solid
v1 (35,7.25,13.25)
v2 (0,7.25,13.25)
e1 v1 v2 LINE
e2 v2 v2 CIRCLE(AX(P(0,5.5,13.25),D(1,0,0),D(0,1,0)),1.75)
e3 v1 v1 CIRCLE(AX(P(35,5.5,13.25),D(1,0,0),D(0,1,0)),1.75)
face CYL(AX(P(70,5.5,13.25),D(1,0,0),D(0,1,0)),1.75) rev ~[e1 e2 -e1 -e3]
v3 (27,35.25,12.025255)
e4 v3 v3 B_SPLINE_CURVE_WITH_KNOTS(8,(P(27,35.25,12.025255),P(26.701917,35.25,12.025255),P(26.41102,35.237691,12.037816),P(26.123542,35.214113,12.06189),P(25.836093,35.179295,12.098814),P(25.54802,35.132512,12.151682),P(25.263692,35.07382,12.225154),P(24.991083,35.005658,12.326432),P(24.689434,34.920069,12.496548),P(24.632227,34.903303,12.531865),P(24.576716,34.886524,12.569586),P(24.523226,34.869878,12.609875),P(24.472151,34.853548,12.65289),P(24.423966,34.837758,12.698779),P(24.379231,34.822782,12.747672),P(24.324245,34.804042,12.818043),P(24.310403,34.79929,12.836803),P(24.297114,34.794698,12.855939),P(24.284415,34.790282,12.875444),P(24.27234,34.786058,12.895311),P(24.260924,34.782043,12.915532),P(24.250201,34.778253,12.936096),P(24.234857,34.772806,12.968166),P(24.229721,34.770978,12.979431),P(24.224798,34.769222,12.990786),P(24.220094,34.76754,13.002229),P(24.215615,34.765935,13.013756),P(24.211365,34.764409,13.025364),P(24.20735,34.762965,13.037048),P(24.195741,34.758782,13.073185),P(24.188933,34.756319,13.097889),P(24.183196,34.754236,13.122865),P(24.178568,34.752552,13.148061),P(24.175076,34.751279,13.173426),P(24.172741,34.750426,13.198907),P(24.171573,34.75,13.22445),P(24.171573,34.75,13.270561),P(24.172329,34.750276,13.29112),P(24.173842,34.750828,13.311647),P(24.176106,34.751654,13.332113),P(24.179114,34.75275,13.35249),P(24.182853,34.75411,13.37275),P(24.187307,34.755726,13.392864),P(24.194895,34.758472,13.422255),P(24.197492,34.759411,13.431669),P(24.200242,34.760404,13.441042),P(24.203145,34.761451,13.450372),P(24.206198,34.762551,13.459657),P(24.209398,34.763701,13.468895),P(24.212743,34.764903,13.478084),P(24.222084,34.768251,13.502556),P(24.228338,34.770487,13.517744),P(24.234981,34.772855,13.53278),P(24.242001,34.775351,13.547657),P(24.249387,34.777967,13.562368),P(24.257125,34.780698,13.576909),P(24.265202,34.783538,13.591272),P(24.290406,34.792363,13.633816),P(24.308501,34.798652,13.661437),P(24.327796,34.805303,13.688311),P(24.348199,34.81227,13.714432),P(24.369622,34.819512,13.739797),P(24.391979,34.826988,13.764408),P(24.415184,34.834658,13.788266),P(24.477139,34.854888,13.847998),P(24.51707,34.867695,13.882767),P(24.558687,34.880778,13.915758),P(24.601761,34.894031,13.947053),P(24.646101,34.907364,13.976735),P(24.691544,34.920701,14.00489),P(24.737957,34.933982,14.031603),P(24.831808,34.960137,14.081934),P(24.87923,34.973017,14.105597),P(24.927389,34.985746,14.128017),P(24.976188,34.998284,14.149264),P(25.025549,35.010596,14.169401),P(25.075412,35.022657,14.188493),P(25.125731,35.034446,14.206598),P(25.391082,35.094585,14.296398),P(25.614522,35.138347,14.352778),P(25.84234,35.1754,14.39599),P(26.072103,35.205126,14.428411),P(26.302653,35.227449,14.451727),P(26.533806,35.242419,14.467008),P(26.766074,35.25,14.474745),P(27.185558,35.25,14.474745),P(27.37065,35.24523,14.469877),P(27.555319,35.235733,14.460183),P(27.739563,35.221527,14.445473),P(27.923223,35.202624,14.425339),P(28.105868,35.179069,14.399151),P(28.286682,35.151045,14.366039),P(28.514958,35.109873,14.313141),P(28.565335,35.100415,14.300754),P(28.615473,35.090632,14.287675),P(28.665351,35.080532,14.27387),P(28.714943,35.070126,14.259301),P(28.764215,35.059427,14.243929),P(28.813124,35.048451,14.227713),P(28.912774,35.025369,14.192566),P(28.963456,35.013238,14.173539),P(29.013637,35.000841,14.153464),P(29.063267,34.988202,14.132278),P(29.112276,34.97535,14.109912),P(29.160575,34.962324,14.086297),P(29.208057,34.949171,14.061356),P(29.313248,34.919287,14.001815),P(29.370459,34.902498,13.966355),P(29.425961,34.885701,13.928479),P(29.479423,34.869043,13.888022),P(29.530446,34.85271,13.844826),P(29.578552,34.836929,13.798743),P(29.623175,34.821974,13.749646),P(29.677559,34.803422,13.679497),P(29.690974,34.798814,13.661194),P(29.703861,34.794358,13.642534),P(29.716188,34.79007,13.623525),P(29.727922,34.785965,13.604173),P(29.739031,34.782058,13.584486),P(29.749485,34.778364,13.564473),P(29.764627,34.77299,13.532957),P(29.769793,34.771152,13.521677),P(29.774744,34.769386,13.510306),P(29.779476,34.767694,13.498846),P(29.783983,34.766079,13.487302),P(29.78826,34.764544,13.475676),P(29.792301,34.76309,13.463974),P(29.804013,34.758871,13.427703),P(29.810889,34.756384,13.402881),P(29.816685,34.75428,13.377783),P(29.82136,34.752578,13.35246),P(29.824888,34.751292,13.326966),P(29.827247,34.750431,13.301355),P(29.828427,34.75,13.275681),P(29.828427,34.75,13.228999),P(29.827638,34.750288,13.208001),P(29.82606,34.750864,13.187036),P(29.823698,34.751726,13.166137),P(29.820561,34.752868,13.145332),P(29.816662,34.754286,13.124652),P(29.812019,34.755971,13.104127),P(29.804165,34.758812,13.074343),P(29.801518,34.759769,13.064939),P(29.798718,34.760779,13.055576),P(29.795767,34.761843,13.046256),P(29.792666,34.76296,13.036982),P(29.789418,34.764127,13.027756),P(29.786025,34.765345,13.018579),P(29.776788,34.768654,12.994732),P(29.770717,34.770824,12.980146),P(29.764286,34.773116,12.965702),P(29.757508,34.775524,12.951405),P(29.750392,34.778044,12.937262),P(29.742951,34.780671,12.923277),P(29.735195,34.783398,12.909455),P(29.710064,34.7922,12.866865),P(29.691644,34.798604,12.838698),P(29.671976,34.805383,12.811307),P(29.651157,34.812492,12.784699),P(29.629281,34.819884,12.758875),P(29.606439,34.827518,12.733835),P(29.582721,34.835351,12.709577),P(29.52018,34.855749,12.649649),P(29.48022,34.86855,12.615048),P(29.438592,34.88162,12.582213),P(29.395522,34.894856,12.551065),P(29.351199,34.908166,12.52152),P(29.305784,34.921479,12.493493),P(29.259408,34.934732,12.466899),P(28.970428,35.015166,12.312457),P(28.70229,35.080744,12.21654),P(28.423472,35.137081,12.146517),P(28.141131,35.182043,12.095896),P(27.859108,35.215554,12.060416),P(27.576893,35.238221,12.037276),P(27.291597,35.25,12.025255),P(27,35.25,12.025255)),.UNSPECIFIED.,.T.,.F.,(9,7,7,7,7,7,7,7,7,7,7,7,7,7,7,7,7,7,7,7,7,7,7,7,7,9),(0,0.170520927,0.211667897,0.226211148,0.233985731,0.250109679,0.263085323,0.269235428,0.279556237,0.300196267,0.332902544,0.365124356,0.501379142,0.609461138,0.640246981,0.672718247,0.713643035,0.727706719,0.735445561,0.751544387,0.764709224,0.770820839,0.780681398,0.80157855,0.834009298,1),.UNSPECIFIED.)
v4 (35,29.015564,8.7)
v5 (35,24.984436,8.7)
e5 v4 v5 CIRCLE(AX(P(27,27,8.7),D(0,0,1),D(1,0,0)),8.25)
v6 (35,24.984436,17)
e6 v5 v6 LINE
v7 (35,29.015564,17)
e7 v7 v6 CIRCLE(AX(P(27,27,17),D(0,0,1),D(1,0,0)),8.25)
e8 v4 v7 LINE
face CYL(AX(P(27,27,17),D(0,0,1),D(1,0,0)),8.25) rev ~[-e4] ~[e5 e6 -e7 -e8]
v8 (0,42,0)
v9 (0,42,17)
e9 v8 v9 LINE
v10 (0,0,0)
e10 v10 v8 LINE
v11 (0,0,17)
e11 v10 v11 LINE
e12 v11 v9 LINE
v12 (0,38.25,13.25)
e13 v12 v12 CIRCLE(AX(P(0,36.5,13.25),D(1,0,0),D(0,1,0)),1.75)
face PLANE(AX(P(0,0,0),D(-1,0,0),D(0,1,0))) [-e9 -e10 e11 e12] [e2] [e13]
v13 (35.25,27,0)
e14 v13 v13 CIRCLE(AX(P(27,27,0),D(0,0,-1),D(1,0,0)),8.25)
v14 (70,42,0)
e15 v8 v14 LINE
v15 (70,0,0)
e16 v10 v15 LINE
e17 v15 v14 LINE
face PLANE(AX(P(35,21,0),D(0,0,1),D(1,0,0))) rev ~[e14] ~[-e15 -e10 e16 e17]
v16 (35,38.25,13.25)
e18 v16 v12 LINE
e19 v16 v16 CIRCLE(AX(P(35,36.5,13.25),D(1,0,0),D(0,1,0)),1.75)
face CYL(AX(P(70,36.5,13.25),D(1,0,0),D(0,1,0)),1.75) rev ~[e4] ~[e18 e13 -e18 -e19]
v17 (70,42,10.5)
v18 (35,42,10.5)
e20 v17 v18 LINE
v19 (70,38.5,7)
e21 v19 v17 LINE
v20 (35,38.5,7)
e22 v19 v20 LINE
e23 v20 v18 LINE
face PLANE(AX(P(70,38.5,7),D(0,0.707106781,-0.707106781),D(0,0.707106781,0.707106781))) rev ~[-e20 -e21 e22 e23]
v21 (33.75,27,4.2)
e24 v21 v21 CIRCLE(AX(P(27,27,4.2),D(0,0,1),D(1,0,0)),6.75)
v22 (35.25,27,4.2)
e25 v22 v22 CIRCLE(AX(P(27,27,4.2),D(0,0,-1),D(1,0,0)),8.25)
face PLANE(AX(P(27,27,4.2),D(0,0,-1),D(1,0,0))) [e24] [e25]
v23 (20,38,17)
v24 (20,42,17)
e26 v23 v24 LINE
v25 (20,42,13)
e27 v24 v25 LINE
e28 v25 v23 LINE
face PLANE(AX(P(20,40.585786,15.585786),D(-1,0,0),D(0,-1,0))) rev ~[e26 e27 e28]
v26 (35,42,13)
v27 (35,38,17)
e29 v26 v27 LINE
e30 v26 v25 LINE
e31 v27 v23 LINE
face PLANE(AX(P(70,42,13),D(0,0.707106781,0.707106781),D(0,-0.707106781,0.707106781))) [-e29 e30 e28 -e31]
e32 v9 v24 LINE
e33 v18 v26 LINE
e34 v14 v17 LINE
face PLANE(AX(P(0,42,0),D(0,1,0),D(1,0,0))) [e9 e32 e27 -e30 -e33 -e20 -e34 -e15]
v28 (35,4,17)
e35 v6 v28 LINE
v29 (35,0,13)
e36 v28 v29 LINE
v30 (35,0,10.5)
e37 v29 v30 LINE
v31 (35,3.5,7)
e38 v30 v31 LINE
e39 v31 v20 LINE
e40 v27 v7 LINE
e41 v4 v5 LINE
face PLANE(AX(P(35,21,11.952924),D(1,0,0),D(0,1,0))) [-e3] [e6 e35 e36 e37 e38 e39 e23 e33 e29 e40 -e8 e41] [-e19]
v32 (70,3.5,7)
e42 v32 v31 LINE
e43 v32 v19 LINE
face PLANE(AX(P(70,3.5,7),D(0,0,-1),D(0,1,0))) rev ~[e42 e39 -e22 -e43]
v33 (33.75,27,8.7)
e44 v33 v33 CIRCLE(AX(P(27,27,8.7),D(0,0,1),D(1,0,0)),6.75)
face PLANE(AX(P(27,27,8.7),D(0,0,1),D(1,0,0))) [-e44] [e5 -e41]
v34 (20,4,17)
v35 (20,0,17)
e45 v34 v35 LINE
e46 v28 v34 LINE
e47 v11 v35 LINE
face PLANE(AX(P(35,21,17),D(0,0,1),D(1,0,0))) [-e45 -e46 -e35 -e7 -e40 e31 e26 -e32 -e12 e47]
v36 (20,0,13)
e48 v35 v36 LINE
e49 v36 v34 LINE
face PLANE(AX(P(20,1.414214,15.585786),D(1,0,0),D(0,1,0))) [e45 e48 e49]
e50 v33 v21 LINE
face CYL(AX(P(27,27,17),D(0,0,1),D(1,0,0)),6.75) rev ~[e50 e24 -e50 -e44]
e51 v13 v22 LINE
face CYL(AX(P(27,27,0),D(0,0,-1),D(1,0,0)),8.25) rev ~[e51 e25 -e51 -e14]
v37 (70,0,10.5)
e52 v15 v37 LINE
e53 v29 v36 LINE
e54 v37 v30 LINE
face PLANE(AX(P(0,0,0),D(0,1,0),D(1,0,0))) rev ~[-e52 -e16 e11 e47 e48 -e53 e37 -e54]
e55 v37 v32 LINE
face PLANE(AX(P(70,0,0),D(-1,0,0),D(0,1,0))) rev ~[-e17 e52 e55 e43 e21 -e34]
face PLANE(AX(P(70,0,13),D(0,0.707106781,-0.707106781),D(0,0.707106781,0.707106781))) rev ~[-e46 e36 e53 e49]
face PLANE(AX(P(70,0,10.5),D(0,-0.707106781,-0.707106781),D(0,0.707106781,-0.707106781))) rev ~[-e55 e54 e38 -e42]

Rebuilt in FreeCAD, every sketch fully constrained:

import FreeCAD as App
import Part
import Sketcher
Q = App.Units.Quantity


def add_polygon(sketch, points):
    """Adds a closed chain of lines whose ends are joined by coincident constraints."""
    first, n = sketch.GeometryCount, len(points)
    for a, b in zip(points, points[1:] + points[:1]):
        sketch.addGeometry(Part.LineSegment(App.Vector(*a, 0), App.Vector(*b, 0)), False)
    for i in range(n):
        sketch.addConstraint(Sketcher.Constraint("Coincident", first + i, 2, first + (i + 1) % n, 1))

doc = App.newDocument("Part")
params = doc.addObject("Spreadsheet::Sheet", "Params")
for row, (alias, value) in enumerate([
    ("sketch1_width", "70 mm"),
    ("sketch1_height", "42 mm"),
    ("pad1_length", "17 mm"),
    ("sketch2_diameter", "3.5 mm"),
    ("sketch3_width", "4 mm"),
    ("pocket2_length", "50 mm"),
    ("sketch4_width", "35 mm"),
    ("sketch4_width2", "34 mm"),
    ("sketch4_height", "2.5 mm"),
    ("pocket3_length", "35 mm"),
    ("sketch5_diameter", "13.5 mm"),
    ("sketch6_diameter", "16.5 mm"),
    ("pocket5_length", "8.3 mm"),
    ("sketch7_diameter", "16.5 mm"),
    ("pocket6_length", "4.2 mm"),
], start=1):
    params.set(f"A{row}", alias)
    params.set(f"B{row}", "=" + value)
    params.setAlias(f"B{row}", alias)

body = doc.addObject("PartDesign::Body", "Body")

sketch1 = body.newObject("Sketcher::SketchObject", "Sketch")
sketch1.AttachmentSupport = (doc.getObject("XY_Plane"), [""])
sketch1.MapMode = "FlatFace"
add_polygon(sketch1, [(0, 42), (0, 0), (70, 0), (70, 42)])
sketch1.addConstraint(Sketcher.Constraint("Vertical", 0))
sketch1.addConstraint(Sketcher.Constraint("Horizontal", 1))
sketch1.addConstraint(Sketcher.Constraint("Vertical", 2))
sketch1.addConstraint(Sketcher.Constraint("Horizontal", 3))
sketch1.addConstraint(Sketcher.Constraint("Coincident", 0, 2, -1, 1))
sketch1.addConstraint(Sketcher.Constraint("DistanceX", 1, 1, 1, 2, Q("70 mm")))
sketch1.addConstraint(Sketcher.Constraint("DistanceY", 0, 2, 0, 1, Q("42 mm")))
sketch1.setExpression("Constraints[9]", "Params.sketch1_width")
sketch1.setExpression("Constraints[10]", "Params.sketch1_height")
pad1 = body.newObject("PartDesign::Pad", "Pad")
pad1.Profile = sketch1
pad1.setExpression("Length", "Params.pad1_length")

sketch2 = body.newObject("Sketcher::SketchObject", "Sketch001")
sketch2.AttachmentSupport = (doc.getObject("YZ_Plane"), [""])
sketch2.MapMode = "FlatFace"
sketch2.AttachmentOffset = App.Placement(App.Vector(0, 0, 70), App.Rotation())
sketch2.addGeometry(Part.Circle(App.Vector(5.5, 13.2, 0), App.Vector(0, 0, 1), 1.8), False)
sketch2.addGeometry(Part.Circle(App.Vector(36.5, 13.2, 0), App.Vector(0, 0, 1), 1.8), False)
sketch2.addConstraint(Sketcher.Constraint("Equal", 0, 1))
sketch2.addConstraint(Sketcher.Constraint("Horizontal", 0, 3, 1, 3))
sketch2.addConstraint(Sketcher.Constraint("Diameter", 0, Q("3.5 mm")))
sketch2.addConstraint(Sketcher.Constraint("DistanceX", 0, 3, 1, 3, Q("31 mm")))
sketch2.addConstraint(Sketcher.Constraint("DistanceX", -1, 1, 0, 3, Q("5.5 mm")))
sketch2.addConstraint(Sketcher.Constraint("DistanceY", -1, 1, 0, 3, Q("13.25 mm")))
sketch2.setExpression("Constraints[2]", "Params.sketch2_diameter")
pocket1 = body.newObject("PartDesign::Pocket", "Pocket")
pocket1.Profile = sketch2
pocket1.Type = "ThroughAll"

sketch3 = body.newObject("Sketcher::SketchObject", "Sketch002")
sketch3.AttachmentSupport = (doc.getObject("YZ_Plane"), [""])
sketch3.MapMode = "FlatFace"
sketch3.AttachmentOffset = App.Placement(App.Vector(0, 0, 70), App.Rotation())
add_polygon(sketch3, [(4, 17), (0, 17), (0, 13)])
add_polygon(sketch3, [(42, 17), (38, 17), (42, 13)])
sketch3.addConstraint(Sketcher.Constraint("Horizontal", 0))
sketch3.addConstraint(Sketcher.Constraint("Vertical", 1))
sketch3.addConstraint(Sketcher.Constraint("Horizontal", 3))
sketch3.addConstraint(Sketcher.Constraint("Vertical", 5))
sketch3.addConstraint(Sketcher.Constraint("PointOnObject", 0, 2, -2))
sketch3.addConstraint(Sketcher.Constraint("Perpendicular", 2, 4))
sketch3.addConstraint(Sketcher.Constraint("Horizontal", 2, 2, 3, 2))
sketch3.addConstraint(Sketcher.Constraint("Horizontal", 1, 2, 4, 2))
sketch3.addConstraint(Sketcher.Constraint("Equal", 0, 3))
sketch3.addConstraint(Sketcher.Constraint("DistanceX", 0, 2, 0, 1, Q("4 mm")))
sketch3.addConstraint(Sketcher.Constraint("DistanceY", -1, 1, 0, 2, Q("17 mm")))
sketch3.addConstraint(Sketcher.Constraint("DistanceX", -1, 1, 3, 2, Q("38 mm")))
sketch3.setExpression("Constraints[15]", "Params.sketch3_width")
pocket2 = body.newObject("PartDesign::Pocket", "Pocket001")
pocket2.Profile = sketch3
pocket2.setExpression("Length", "Params.pocket2_length")

sketch4 = body.newObject("Sketcher::SketchObject", "Sketch003")
sketch4.AttachmentSupport = (doc.getObject("YZ_Plane"), [""])
sketch4.MapMode = "FlatFace"
sketch4.AttachmentOffset = App.Placement(App.Vector(0, 0, 70), App.Rotation())
add_polygon(sketch4, [(4, 17), (0, 13), (0, 10.5), (3.5, 7), (38.5, 7), (42, 10.5), (42, 13), (38, 17)])
sketch4.addConstraint(Sketcher.Constraint("Vertical", 1))
sketch4.addConstraint(Sketcher.Constraint("Horizontal", 3))
sketch4.addConstraint(Sketcher.Constraint("Vertical", 5))
sketch4.addConstraint(Sketcher.Constraint("Horizontal", 7))
sketch4.addConstraint(Sketcher.Constraint("PointOnObject", 0, 2, -2))
sketch4.addConstraint(Sketcher.Constraint("Perpendicular", 0, 2))
sketch4.addConstraint(Sketcher.Constraint("Perpendicular", 2, 4))
sketch4.addConstraint(Sketcher.Constraint("Perpendicular", 4, 6))
sketch4.addConstraint(Sketcher.Constraint("Horizontal", 1, 2, 4, 2))
sketch4.addConstraint(Sketcher.Constraint("Horizontal", 0, 2, 5, 2))
sketch4.addConstraint(Sketcher.Constraint("Equal", 2, 4))
sketch4.addConstraint(Sketcher.Constraint("DistanceX", 3, 1, 3, 2, Q("35 mm")))
sketch4.addConstraint(Sketcher.Constraint("DistanceX", 7, 2, 7, 1, Q("34 mm")))
sketch4.addConstraint(Sketcher.Constraint("DistanceY", 1, 2, 1, 1, Q("2.5 mm")))
sketch4.addConstraint(Sketcher.Constraint("DistanceY", -1, 1, 0, 2, Q("13 mm")))
sketch4.addConstraint(Sketcher.Constraint("DistanceY", -1, 1, 2, 2, Q("7 mm")))
sketch4.setExpression("Constraints[19]", "Params.sketch4_width")
sketch4.setExpression("Constraints[20]", "Params.sketch4_width2")
sketch4.setExpression("Constraints[21]", "Params.sketch4_height")
pocket3 = body.newObject("PartDesign::Pocket", "Pocket002")
pocket3.Profile = sketch4
pocket3.setExpression("Length", "Params.pocket3_length")

sketch5 = body.newObject("Sketcher::SketchObject", "Sketch004")
sketch5.AttachmentSupport = (doc.getObject("XY_Plane"), [""])
sketch5.MapMode = "FlatFace"
sketch5.AttachmentOffset = App.Placement(App.Vector(0, 0, 17), App.Rotation())
sketch5.addGeometry(Part.Circle(App.Vector(27, 27, 0), App.Vector(0, 0, 1), 7), False)
sketch5.addConstraint(Sketcher.Constraint("Diameter", 0, Q("13.5 mm")))
sketch5.addConstraint(Sketcher.Constraint("DistanceX", -1, 1, 0, 3, Q("27 mm")))
sketch5.addConstraint(Sketcher.Constraint("DistanceY", -1, 1, 0, 3, Q("27 mm")))
sketch5.setExpression("Constraints[0]", "Params.sketch5_diameter")
pocket4 = body.newObject("PartDesign::Pocket", "Pocket003")
pocket4.Profile = sketch5
pocket4.Type = "ThroughAll"

sketch6 = body.newObject("Sketcher::SketchObject", "Sketch005")
sketch6.AttachmentSupport = (doc.getObject("XY_Plane"), [""])
sketch6.MapMode = "FlatFace"
sketch6.AttachmentOffset = App.Placement(App.Vector(0, 0, 17), App.Rotation())
sketch6.addGeometry(Part.Circle(App.Vector(27, 27, 0), App.Vector(0, 0, 1), 8), False)
sketch6.addConstraint(Sketcher.Constraint("Diameter", 0, Q("16.5 mm")))
sketch6.addConstraint(Sketcher.Constraint("DistanceX", -1, 1, 0, 3, Q("27 mm")))
sketch6.addConstraint(Sketcher.Constraint("DistanceY", -1, 1, 0, 3, Q("27 mm")))
sketch6.setExpression("Constraints[0]", "Params.sketch6_diameter")
pocket5 = body.newObject("PartDesign::Pocket", "Pocket004")
pocket5.Profile = sketch6
pocket5.setExpression("Length", "Params.pocket5_length")

sketch7 = body.newObject("Sketcher::SketchObject", "Sketch006")
sketch7.AttachmentSupport = (doc.getObject("XY_Plane"), [""])
sketch7.MapMode = "FlatFace"
sketch7.addGeometry(Part.Circle(App.Vector(27, 27, 0), App.Vector(0, 0, 1), 8), False)
sketch7.addConstraint(Sketcher.Constraint("Diameter", 0, Q("16.5 mm")))
sketch7.addConstraint(Sketcher.Constraint("DistanceX", -1, 1, 0, 3, Q("27 mm")))
sketch7.addConstraint(Sketcher.Constraint("DistanceY", -1, 1, 0, 3, Q("27 mm")))
sketch7.setExpression("Constraints[0]", "Params.sketch7_diameter")
pocket6 = body.newObject("PartDesign::Pocket", "Pocket005")
pocket6.Profile = sketch7
pocket6.setExpression("Length", "Params.pocket6_length")
pocket6.Reversed = True

doc.recompute()
